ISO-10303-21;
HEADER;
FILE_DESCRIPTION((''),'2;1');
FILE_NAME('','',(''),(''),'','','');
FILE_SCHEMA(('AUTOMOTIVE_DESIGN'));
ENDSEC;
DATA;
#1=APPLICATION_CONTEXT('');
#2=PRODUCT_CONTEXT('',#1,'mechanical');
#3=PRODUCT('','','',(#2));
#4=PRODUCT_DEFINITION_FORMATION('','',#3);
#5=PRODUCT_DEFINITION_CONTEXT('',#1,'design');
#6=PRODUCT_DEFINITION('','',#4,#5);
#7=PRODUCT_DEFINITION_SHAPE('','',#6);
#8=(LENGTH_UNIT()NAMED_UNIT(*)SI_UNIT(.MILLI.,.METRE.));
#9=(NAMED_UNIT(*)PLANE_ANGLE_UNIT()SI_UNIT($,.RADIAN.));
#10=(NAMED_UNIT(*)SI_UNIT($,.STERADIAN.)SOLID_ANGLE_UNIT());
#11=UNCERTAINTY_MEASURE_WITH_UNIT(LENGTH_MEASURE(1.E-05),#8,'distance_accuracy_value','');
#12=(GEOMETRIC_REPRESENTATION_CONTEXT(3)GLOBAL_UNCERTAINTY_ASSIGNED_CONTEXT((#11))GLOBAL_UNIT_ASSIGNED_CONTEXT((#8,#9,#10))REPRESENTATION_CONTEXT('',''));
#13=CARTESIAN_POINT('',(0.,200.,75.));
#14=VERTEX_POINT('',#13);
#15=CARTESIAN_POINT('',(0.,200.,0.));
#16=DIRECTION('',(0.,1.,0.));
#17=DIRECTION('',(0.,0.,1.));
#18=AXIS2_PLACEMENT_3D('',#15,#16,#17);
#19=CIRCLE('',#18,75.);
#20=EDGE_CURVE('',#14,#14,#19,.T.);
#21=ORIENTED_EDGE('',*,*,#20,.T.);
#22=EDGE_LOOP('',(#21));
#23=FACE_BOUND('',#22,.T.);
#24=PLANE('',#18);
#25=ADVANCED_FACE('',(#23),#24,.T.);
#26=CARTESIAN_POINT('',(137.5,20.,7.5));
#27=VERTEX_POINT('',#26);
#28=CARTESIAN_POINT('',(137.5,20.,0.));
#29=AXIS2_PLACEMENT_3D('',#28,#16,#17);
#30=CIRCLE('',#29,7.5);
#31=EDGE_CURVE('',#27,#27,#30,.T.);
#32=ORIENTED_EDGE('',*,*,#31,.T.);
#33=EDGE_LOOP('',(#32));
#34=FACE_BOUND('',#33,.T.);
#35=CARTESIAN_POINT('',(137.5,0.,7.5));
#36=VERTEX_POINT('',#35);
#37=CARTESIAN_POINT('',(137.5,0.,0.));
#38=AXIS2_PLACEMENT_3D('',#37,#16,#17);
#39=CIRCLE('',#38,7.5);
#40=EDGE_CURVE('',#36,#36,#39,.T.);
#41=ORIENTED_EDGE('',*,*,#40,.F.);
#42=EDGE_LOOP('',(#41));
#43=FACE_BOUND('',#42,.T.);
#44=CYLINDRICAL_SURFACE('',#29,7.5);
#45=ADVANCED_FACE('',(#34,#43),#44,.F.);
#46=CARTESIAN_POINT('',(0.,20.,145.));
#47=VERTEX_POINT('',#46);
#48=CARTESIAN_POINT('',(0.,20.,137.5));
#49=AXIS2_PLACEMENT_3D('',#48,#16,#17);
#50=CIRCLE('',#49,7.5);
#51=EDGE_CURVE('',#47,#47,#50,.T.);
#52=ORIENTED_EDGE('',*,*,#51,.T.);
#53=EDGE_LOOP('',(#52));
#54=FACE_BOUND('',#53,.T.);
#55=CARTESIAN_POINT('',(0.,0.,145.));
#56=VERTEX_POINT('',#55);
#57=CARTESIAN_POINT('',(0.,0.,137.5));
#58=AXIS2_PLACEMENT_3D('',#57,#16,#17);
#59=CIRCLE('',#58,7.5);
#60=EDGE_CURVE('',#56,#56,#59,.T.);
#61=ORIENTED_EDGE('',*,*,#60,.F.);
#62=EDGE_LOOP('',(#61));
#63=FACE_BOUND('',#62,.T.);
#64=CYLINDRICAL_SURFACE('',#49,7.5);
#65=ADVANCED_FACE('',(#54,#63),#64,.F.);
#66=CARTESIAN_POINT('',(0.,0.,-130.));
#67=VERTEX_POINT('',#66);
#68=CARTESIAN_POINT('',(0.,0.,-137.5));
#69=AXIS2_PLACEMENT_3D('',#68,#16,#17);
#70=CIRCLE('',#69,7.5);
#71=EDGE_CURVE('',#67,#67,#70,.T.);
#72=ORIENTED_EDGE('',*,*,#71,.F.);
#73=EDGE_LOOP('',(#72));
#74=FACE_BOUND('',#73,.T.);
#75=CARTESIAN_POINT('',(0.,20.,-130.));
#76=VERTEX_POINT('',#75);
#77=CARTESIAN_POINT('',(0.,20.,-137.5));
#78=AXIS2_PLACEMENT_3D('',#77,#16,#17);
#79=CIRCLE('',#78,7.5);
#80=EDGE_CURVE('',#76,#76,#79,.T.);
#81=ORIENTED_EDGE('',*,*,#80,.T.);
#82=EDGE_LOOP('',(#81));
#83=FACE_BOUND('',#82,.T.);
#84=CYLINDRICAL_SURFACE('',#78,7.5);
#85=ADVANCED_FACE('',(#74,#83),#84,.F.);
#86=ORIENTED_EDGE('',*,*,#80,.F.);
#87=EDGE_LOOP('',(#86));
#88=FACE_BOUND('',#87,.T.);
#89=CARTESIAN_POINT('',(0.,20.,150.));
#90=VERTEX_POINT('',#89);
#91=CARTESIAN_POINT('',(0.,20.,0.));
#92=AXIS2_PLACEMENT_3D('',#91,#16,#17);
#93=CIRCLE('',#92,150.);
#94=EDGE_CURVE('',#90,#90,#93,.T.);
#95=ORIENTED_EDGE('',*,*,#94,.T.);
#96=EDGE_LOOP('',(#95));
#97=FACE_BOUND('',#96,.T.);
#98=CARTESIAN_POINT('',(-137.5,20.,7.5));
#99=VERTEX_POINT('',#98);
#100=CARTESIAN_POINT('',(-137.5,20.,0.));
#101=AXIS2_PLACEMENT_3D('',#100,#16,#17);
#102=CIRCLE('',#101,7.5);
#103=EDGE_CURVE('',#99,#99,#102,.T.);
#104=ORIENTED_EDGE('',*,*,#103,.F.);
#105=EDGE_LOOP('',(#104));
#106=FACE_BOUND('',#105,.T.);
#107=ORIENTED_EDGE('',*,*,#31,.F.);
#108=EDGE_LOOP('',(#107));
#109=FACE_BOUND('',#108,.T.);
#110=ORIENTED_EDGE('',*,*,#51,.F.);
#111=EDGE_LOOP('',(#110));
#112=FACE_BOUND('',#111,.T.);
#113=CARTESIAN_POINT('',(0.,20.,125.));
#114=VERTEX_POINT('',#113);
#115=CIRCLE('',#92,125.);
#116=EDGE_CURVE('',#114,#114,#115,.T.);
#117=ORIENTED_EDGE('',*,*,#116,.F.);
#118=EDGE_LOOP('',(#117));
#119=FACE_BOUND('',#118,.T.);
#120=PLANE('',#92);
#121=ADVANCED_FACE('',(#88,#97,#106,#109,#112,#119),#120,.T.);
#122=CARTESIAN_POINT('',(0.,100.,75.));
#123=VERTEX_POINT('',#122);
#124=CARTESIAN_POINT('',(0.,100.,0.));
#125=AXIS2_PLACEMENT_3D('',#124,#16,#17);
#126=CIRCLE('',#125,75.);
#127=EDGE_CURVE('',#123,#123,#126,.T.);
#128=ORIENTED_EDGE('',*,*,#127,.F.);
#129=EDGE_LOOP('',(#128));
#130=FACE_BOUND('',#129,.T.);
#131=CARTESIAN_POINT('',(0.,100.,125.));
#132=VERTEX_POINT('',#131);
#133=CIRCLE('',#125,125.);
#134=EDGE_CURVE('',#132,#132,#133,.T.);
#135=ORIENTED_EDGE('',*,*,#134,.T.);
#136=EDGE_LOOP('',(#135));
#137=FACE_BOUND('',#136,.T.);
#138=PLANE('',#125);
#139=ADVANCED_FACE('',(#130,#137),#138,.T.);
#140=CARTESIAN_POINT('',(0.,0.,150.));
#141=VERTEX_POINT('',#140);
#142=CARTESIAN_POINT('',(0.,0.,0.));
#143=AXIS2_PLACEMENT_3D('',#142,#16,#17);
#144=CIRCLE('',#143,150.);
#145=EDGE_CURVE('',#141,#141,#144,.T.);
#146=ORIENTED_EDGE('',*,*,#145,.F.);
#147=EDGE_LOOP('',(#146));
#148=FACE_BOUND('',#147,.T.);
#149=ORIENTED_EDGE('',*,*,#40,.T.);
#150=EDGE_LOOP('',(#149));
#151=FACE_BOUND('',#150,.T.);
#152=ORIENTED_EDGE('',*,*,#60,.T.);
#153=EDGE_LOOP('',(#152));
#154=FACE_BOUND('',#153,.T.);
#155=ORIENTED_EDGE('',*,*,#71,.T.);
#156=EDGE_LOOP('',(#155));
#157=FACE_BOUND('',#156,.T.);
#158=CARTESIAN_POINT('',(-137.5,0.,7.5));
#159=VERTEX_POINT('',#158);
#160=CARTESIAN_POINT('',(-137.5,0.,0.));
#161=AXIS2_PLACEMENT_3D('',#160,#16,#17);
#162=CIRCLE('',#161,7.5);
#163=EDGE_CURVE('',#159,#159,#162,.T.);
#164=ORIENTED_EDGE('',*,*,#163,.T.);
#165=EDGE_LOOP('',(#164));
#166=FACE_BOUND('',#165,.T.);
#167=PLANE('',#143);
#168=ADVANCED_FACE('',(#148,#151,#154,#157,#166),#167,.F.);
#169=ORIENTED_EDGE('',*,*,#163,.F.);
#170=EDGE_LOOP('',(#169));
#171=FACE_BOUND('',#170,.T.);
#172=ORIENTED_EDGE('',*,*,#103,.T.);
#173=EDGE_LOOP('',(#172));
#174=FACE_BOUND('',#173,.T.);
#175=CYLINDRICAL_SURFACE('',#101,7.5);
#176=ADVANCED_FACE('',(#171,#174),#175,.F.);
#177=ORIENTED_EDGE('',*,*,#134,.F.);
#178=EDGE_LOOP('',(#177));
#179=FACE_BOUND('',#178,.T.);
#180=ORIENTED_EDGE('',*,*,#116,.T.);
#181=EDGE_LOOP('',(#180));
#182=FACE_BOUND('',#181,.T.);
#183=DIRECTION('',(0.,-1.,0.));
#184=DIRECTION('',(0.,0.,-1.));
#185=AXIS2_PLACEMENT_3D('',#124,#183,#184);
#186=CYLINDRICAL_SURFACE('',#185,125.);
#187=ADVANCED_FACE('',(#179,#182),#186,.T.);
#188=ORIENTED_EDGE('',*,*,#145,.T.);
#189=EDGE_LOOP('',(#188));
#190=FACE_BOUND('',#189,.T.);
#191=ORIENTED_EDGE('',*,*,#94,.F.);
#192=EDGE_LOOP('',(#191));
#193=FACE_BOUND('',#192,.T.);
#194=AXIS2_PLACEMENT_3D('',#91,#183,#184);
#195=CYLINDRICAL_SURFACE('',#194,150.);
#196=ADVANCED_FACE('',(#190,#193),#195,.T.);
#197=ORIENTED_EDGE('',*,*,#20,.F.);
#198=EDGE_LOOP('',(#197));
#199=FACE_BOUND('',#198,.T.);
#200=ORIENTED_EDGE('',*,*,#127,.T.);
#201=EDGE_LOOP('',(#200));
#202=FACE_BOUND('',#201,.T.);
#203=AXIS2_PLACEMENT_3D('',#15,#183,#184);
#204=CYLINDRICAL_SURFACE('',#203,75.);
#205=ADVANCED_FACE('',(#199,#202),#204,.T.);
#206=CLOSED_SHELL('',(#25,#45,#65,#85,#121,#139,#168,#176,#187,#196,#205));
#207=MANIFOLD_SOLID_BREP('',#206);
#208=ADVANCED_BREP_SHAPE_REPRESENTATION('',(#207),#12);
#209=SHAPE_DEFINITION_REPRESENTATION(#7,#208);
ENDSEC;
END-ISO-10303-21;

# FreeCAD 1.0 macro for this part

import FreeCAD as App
import Part
import Sketcher

V = App.Vector
Q = App.Units.Quantity

doc = App.newDocument("Part")
body = doc.addObject("PartDesign::Body", "Body")

# Sketch on XZ plane
sketch1 = body.newObject("Sketcher::SketchObject", "Sketch")
sketch1.AttachmentSupport = (doc.getObject("XZ_Plane"), [""])
sketch1.MapMode = "FlatFace"
sketch1.addGeometry([
    Part.Circle(V(0, 0, 0), V(0, 0, 1), 150),
    Part.Circle(V(0, 0, 0), V(0, 0, 1), 125),
], False)
sketch1.addConstraint([
    Sketcher.Constraint("Coincident", 0, 3, -1, 1),
    Sketcher.Constraint("Coincident", 1, 3, -1, 1),
    Sketcher.Constraint("Diameter", 0, Q("300 mm")),
    Sketcher.Constraint("Diameter", 1, Q("250 mm")),
])
pad1 = body.newObject("PartDesign::Pad", "Pad")
pad1.Profile = sketch1
pad1.Length = 20
pad1.Reversed = True

# Sketch on XZ plane
sketch2 = body.newObject("Sketcher::SketchObject", "Sketch001")
sketch2.AttachmentSupport = (doc.getObject("XZ_Plane"), [""])
sketch2.MapMode = "FlatFace"
sketch2.addGeometry(Part.Circle(V(0, 0, 0), V(0, 0, 1), 125), False)
sketch2.addConstraint([
    Sketcher.Constraint("Coincident", 0, 3, -1, 1),
    Sketcher.Constraint("Diameter", 0, Q("250 mm")),
])
pad2 = body.newObject("PartDesign::Pad", "Pad001")
pad2.Profile = sketch2
pad2.Length = 100
pad2.Reversed = True

# Sketch on XZ plane
sketch3 = body.newObject("Sketcher::SketchObject", "Sketch002")
sketch3.AttachmentSupport = (doc.getObject("XZ_Plane"), [""])
sketch3.MapMode = "FlatFace"
sketch3.AttachmentOffset = App.Placement(V(0, 0, -100), App.Rotation())
sketch3.addGeometry(Part.Circle(V(0, 0, 0), V(0, 0, 1), 75), False)
sketch3.addConstraint([
    Sketcher.Constraint("Coincident", 0, 3, -1, 1),
    Sketcher.Constraint("Diameter", 0, Q("150 mm")),
])
pad3 = body.newObject("PartDesign::Pad", "Pad002")
pad3.Profile = sketch3
pad3.Length = 100
pad3.Reversed = True

# Sketch on XZ plane
sketch4 = body.newObject("Sketcher::SketchObject", "Sketch003")
sketch4.AttachmentSupport = (doc.getObject("XZ_Plane"), [""])
sketch4.MapMode = "FlatFace"
sketch4.AttachmentOffset = App.Placement(V(0, 0, -20), App.Rotation())
sketch4.addGeometry(Part.Circle(V(138, 0, 0), V(0, 0, 1), 8), False)
sketch4.addConstraint([
    Sketcher.Constraint("PointOnObject", 0, 3, -1),
    Sketcher.Constraint("Diameter", 0, Q("15 mm")),
    Sketcher.Constraint("DistanceX", -1, 1, 0, 3, Q("137.5 mm")),
])
doc.recompute()
hole = body.newObject("PartDesign::Hole", "Hole")
hole.Profile = sketch4
hole.ThreadType = "None"
hole.Diameter = 15
hole.DepthType = "ThroughAll"
hole.Reversed = True
doc.recompute()

polarpattern = body.newObject("PartDesign::PolarPattern", "PolarPattern")
polarpattern.Originals = [hole]
polarpattern.Axis = (doc.getObject("Y_Axis"), [""])
polarpattern.Angle = 360
polarpattern.Occurrences = 4
body.Tip = polarpattern

doc.recompute()
